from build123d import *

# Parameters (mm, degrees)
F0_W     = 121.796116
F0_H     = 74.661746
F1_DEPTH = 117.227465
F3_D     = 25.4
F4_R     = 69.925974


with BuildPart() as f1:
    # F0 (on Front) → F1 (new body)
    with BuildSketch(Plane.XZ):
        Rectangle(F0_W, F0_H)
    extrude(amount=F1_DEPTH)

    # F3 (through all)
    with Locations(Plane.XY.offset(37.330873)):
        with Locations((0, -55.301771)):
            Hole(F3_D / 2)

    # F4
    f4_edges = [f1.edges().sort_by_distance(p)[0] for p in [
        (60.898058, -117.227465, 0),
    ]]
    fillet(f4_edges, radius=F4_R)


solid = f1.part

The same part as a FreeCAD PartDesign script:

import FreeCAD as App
import Part
import Sketcher
Q = App.Units.Quantity


def edges_at(feature, points):
    """Names of the edges that pass closest to the given points."""
    edges = feature.Shape.Edges
    near = lambda p: min(range(len(edges)), key=lambda i: edges[i].distToShape(Part.Vertex(*p))[0])
    return sorted({f"Edge{near(p) + 1}" for p in points})


def add_polygon(sketch, points):
    """Adds a closed chain of lines whose ends are joined by coincident constraints."""
    first, n = sketch.GeometryCount, len(points)
    for a, b in zip(points, points[1:] + points[:1]):
        sketch.addGeometry(Part.LineSegment(App.Vector(*a, 0), App.Vector(*b, 0)), False)
    for i in range(n):
        sketch.addConstraint(Sketcher.Constraint("Coincident", first + i, 2, first + (i + 1) % n, 1))

doc = App.newDocument("Part")
body = doc.addObject("PartDesign::Body", "Body")

sketch1 = body.newObject("Sketcher::SketchObject", "Sketch")
sketch1.AttachmentSupport = (doc.getObject("XZ_Plane"), [""])
sketch1.MapMode = "FlatFace"
add_polygon(sketch1, [(-60.898058, 37.330873), (-60.898058, -37.330873), (60.898058, -37.330873), (60.898058, 37.330873)])
sketch1.addConstraint([
    Sketcher.Constraint("Vertical", 0),
    Sketcher.Constraint("Horizontal", 1),
    Sketcher.Constraint("Vertical", 2),
    Sketcher.Constraint("Horizontal", 3),
    Sketcher.Constraint("Symmetric", 0, 2, 2, 2, -1, 1),
    Sketcher.Constraint("DistanceX", 1, 1, 1, 2, Q("121.796116 mm")),
    Sketcher.Constraint("DistanceY", 0, 2, 0, 1, Q("74.661746 mm")),
])
pad1 = body.newObject("PartDesign::Pad", "Pad")
pad1.Profile = sketch1
pad1.Length = 117.227465

sketch2 = body.newObject("Sketcher::SketchObject", "Sketch001")
sketch2.AttachmentSupport = (doc.getObject("XY_Plane"), [""])
sketch2.MapMode = "FlatFace"
sketch2.AttachmentOffset = App.Placement(App.Vector(0, 0, 37.330873), App.Rotation())
sketch2.addGeometry(Part.Circle(App.Vector(0, -55.301771, 0), App.Vector(0, 0, 1), 12.7), False)
sketch2.addConstraint([
    Sketcher.Constraint("PointOnObject", 0, 3, -2),
    Sketcher.Constraint("Diameter", 0, Q("1 in")),
    Sketcher.Constraint("DistanceY", 0, 3, -1, 1, Q("55.301771 mm")),
])
doc.recompute()
hole = body.newObject("PartDesign::Hole", "Hole")
hole.Profile = sketch2
hole.ThreadType = "None"
hole.Diameter = Q("1 in")
hole.DepthType = "ThroughAll"
doc.recompute()

fillet = body.newObject("PartDesign::Fillet", "Fillet")
fillet.Base = (hole, edges_at(hole, [(60.898, -117.227, 0)]))
fillet.Radius = 69.925974

doc.recompute()
